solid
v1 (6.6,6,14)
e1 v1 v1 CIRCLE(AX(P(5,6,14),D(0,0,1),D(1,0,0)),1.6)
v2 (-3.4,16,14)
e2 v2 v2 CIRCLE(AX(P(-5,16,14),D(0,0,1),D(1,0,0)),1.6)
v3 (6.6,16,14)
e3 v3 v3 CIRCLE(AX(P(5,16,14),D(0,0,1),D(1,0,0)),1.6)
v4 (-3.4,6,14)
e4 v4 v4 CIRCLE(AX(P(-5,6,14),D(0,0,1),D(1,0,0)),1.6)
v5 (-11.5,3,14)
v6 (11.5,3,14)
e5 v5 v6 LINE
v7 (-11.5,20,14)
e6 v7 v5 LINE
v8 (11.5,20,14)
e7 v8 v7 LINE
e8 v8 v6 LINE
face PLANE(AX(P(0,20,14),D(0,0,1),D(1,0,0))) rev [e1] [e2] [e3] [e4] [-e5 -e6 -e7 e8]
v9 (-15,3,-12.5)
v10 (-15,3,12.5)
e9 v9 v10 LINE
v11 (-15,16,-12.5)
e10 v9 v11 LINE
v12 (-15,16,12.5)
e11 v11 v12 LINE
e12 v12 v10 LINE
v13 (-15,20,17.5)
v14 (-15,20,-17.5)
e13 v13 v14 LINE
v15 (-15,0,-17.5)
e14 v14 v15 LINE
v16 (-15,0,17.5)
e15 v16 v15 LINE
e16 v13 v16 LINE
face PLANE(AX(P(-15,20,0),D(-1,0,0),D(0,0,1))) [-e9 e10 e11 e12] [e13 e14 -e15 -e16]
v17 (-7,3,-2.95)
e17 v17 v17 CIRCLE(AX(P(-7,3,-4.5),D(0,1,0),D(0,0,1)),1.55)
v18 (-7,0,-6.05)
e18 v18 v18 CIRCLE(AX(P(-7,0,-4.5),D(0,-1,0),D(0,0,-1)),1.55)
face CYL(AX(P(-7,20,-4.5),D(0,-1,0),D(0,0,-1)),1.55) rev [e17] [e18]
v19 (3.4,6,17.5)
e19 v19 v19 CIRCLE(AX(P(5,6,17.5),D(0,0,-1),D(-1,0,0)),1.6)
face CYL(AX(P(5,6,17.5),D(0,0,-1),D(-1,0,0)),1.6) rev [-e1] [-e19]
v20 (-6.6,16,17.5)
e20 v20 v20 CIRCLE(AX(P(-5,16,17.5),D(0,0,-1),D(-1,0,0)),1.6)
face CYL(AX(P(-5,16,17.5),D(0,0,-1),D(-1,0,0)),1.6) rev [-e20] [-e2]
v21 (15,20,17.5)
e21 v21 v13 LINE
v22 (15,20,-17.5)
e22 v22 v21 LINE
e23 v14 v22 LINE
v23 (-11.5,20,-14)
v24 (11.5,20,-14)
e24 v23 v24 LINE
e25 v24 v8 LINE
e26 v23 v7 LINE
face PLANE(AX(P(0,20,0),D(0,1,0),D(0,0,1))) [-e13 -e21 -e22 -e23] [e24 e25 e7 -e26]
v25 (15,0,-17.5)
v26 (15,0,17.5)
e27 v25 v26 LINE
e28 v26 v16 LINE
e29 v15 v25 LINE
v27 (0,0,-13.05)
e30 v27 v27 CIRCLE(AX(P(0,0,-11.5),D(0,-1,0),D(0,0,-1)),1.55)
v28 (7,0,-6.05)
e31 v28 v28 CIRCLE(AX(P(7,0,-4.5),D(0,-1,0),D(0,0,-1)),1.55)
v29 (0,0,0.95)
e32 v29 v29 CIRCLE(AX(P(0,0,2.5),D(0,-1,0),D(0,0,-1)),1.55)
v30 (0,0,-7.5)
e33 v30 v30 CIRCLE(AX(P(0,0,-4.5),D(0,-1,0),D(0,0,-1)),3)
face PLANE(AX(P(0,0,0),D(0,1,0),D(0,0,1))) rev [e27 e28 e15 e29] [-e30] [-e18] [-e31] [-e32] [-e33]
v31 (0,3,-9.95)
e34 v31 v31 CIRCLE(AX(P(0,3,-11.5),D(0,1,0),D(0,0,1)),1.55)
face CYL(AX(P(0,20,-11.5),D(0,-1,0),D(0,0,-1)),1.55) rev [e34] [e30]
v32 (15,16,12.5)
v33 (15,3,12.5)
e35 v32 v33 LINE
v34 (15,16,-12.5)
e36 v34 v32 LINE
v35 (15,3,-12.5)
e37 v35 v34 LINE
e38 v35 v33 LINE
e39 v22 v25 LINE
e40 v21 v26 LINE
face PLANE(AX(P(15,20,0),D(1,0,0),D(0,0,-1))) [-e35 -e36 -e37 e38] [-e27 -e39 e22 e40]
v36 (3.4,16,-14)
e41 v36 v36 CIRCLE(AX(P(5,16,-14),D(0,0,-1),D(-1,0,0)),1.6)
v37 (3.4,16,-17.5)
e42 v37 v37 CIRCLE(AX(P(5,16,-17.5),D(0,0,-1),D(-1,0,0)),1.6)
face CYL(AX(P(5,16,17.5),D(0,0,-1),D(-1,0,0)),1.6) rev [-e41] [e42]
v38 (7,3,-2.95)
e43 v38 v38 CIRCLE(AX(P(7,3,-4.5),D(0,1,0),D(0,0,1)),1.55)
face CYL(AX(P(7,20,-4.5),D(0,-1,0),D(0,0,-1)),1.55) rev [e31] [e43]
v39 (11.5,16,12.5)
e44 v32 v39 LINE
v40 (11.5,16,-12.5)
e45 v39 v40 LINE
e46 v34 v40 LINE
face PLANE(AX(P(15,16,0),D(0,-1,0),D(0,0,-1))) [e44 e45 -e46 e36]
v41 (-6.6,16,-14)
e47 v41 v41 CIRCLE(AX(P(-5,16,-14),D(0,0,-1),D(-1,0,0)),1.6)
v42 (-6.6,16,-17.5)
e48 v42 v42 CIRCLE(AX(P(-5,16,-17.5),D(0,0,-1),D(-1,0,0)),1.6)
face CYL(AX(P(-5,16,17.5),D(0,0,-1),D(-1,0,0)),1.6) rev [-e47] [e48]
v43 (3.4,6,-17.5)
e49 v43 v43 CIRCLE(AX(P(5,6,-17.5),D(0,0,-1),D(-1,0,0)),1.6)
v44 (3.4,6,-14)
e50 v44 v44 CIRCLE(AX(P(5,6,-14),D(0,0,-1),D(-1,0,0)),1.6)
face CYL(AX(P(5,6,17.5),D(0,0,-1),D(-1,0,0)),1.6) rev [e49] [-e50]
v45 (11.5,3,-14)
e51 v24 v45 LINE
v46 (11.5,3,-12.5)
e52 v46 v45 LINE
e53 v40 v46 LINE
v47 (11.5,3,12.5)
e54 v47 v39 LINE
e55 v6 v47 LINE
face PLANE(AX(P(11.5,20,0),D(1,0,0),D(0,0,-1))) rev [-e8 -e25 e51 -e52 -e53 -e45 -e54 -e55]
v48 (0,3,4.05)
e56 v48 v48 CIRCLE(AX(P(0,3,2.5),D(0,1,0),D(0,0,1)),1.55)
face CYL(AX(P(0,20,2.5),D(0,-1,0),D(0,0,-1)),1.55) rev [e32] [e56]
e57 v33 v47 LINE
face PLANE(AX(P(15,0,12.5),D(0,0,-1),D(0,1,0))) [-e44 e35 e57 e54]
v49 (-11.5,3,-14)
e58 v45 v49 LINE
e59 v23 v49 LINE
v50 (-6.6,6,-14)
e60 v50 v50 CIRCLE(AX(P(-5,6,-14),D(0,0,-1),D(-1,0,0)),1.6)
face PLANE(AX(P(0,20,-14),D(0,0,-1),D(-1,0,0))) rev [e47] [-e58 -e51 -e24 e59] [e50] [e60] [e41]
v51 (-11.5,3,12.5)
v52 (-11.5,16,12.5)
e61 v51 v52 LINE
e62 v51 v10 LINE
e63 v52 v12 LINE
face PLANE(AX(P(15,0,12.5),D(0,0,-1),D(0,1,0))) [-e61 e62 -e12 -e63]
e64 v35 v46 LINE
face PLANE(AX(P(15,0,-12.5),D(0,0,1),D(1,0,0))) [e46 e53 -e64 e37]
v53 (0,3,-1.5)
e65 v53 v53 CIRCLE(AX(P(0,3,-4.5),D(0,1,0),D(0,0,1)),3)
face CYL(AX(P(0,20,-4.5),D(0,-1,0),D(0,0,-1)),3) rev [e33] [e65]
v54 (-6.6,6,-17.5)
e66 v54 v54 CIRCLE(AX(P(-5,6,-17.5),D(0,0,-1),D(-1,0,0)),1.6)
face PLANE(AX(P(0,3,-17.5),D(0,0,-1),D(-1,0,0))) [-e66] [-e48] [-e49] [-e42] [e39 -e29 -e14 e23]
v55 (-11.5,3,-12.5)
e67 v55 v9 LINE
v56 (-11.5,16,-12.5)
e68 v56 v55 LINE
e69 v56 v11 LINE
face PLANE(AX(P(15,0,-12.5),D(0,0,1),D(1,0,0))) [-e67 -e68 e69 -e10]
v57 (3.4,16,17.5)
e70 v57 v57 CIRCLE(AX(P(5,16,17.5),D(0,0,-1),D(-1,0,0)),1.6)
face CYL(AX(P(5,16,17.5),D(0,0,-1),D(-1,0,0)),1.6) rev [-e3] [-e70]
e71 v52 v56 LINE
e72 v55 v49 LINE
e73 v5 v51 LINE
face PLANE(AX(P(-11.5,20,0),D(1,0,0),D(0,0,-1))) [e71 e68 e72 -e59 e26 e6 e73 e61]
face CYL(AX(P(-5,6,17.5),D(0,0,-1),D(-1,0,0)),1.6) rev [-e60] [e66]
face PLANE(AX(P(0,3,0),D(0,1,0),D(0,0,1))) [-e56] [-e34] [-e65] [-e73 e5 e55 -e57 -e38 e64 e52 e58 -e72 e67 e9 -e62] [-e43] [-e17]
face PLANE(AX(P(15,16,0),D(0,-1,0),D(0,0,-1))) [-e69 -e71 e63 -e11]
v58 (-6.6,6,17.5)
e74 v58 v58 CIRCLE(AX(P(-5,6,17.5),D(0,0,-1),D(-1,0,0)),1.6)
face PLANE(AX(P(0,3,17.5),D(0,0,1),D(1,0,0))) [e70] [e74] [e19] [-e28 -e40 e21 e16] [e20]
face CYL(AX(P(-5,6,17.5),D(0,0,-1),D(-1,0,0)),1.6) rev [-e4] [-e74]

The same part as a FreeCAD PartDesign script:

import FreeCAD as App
import Part
import Sketcher

V = App.Vector

doc = App.newDocument("Part")
body = doc.addObject("PartDesign::Body", "Body")

sketch1 = body.newObject("Sketcher::SketchObject", "Sketch")
sketch1.AttachmentSupport = (doc.getObject("XZ_Plane"), [""])
sketch1.MapMode = "FlatFace"
sketch1.addGeometry([
    Part.LineSegment(V(-11.5, -17.5, 0), V(-11.5, 17.5, 0)),
    Part.LineSegment(V(-11.5, 17.5, 0), V(11.5, 17.5, 0)),
    Part.LineSegment(V(11.5, 17.5, 0), V(11.5, -17.5, 0)),
    Part.LineSegment(V(11.5, -17.5, 0), V(-11.5, -17.5, 0)),
], False)
sketch1.addConstraint([
    Sketcher.Constraint("Coincident", 0, 2, 1, 1),
    Sketcher.Constraint("Coincident", 1, 2, 2, 1),
    Sketcher.Constraint("Coincident", 2, 2, 3, 1),
    Sketcher.Constraint("Coincident", 3, 2, 0, 1),
    Sketcher.Constraint("Vertical", 0),
    Sketcher.Constraint("Horizontal", 1),
    Sketcher.Constraint("Vertical", 2),
    Sketcher.Constraint("Horizontal", 3),
    Sketcher.Constraint("Symmetric", 0, 2, 2, 2, -1, 1),
    Sketcher.Constraint("DistanceX", 1, 1, 1, 2, 23.0),
    Sketcher.Constraint("DistanceY", 0, 1, 0, 2, 35.0),
])
pad1 = body.newObject("PartDesign::Pad", "Pad")
pad1.Profile = sketch1
pad1.Length = 3
pad1.Reversed = True
body2 = doc.addObject("PartDesign::Body", "Body001")

sketch2 = body2.newObject("Sketcher::SketchObject", "Sketch001")
sketch2.AttachmentSupport = (doc.getObject("XZ_Plane001"), [""])
sketch2.MapMode = "FlatFace"
sketch2.addGeometry([
    Part.LineSegment(V(11.5, 17.5, 0), V(11.5, 14, 0)),
    Part.LineSegment(V(11.5, 14, 0), V(-11.5, 14, 0)),
    Part.LineSegment(V(-11.5, 14, 0), V(-11.5, 17.5, 0)),
    Part.LineSegment(V(-11.5, 17.5, 0), V(11.5, 17.5, 0)),
], False)
sketch2.addConstraint([
    Sketcher.Constraint("Coincident", 0, 2, 1, 1),
    Sketcher.Constraint("Coincident", 1, 2, 2, 1),
    Sketcher.Constraint("Coincident", 2, 2, 3, 1),
    Sketcher.Constraint("Coincident", 3, 2, 0, 1),
    Sketcher.Constraint("Vertical", 0),
    Sketcher.Constraint("Horizontal", 1),
    Sketcher.Constraint("Vertical", 2),
    Sketcher.Constraint("Horizontal", 3),
    Sketcher.Constraint("DistanceX", 1, 2, 1, 1, 23.0),
    Sketcher.Constraint("DistanceY", 0, 2, 0, 1, 3.5),
    Sketcher.Constraint("DistanceY", -1, 1, 0, 2, 14.0),
    Sketcher.Constraint("DistanceX", -1, 1, 0, 2, 11.5),
])
pad2 = body2.newObject("PartDesign::Pad", "Pad001")
pad2.Profile = sketch2
pad2.Length = 18
pad2.Reversed = True
body3 = doc.addObject("PartDesign::Body", "Body002")

sketch3 = body3.newObject("Sketcher::SketchObject", "Sketch002")
sketch3.AttachmentSupport = (doc.getObject("XZ_Plane002"), [""])
sketch3.MapMode = "FlatFace"
sketch3.addGeometry([
    Part.LineSegment(V(-11.5, -14, 0), V(11.5, -14, 0)),
    Part.LineSegment(V(11.5, -14, 0), V(11.5, -17.5, 0)),
    Part.LineSegment(V(11.5, -17.5, 0), V(-11.5, -17.5, 0)),
    Part.LineSegment(V(-11.5, -17.5, 0), V(-11.5, -14, 0)),
], False)
sketch3.addConstraint([
    Sketcher.Constraint("Coincident", 0, 2, 1, 1),
    Sketcher.Constraint("Coincident", 1, 2, 2, 1),
    Sketcher.Constraint("Coincident", 2, 2, 3, 1),
    Sketcher.Constraint("Coincident", 3, 2, 0, 1),
    Sketcher.Constraint("Horizontal", 0),
    Sketcher.Constraint("Vertical", 1),
    Sketcher.Constraint("Horizontal", 2),
    Sketcher.Constraint("Vertical", 3),
    Sketcher.Constraint("DistanceX", 0, 1, 0, 2, 23.0),
    Sketcher.Constraint("DistanceY", 1, 2, 1, 1, 3.5),
    Sketcher.Constraint("DistanceY", 0, 2, -1, 1, 14.0),
    Sketcher.Constraint("DistanceX", -1, 1, 0, 2, 11.5),
])
pad3 = body3.newObject("PartDesign::Pad", "Pad002")
pad3.Profile = sketch3
pad3.Length = 18
pad3.Reversed = True
doc.recompute()

boolean = body.newObject("PartDesign::Boolean", "Boolean")
boolean.Type = "Fuse"
boolean.addObjects([body2])
doc.recompute()

boolean2 = body.newObject("PartDesign::Boolean", "Boolean001")
boolean2.Type = "Fuse"
boolean2.addObjects([body3])

sketch4 = body.newObject("Sketcher::SketchObject", "Sketch003")
sketch4.AttachmentSupport = (doc.getObject("XZ_Plane"), [""])
sketch4.MapMode = "FlatFace"
sketch4.addGeometry([
    Part.LineSegment(V(15, -17.5, 0), V(-15, -17.5, 0)),
    Part.LineSegment(V(-15, -17.5, 0), V(-15, 17.5, 0)),
    Part.LineSegment(V(-15, 17.5, 0), V(15, 17.5, 0)),
    Part.LineSegment(V(15, 17.5, 0), V(15, -17.5, 0)),
    Part.LineSegment(V(11.5, 14, 0), V(-11.5, 14, 0)),
    Part.LineSegment(V(-11.5, 14, 0), V(-11.5, -14, 0)),
    Part.LineSegment(V(-11.5, -14, 0), V(11.5, -14, 0)),
    Part.LineSegment(V(11.5, -14, 0), V(11.5, 14, 0)),
], False)
sketch4.addConstraint([
    Sketcher.Constraint("Coincident", 0, 2, 1, 1),
    Sketcher.Constraint("Coincident", 1, 2, 2, 1),
    Sketcher.Constraint("Coincident", 2, 2, 3, 1),
    Sketcher.Constraint("Coincident", 3, 2, 0, 1),
    Sketcher.Constraint("Coincident", 4, 2, 5, 1),
    Sketcher.Constraint("Coincident", 5, 2, 6, 1),
    Sketcher.Constraint("Coincident", 6, 2, 7, 1),
    Sketcher.Constraint("Coincident", 7, 2, 4, 1),
    Sketcher.Constraint("Horizontal", 0),
    Sketcher.Constraint("Vertical", 1),
    Sketcher.Constraint("Horizontal", 2),
    Sketcher.Constraint("Vertical", 3),
    Sketcher.Constraint("Horizontal", 4),
    Sketcher.Constraint("Vertical", 5),
    Sketcher.Constraint("Horizontal", 6),
    Sketcher.Constraint("Vertical", 7),
    Sketcher.Constraint("Symmetric", 0, 2, 2, 2, -1, 1),
    Sketcher.Constraint("Symmetric", 4, 2, 6, 2, -1, 1),
    Sketcher.Constraint("DistanceX", 0, 2, 0, 1, 30.0),
    Sketcher.Constraint("DistanceX", 4, 2, 4, 1, 23.0),
    Sketcher.Constraint("DistanceY", 1, 1, 1, 2, 35.0),
    Sketcher.Constraint("DistanceY", 5, 2, 5, 1, 28.0),
])
pad4 = body.newObject("PartDesign::Pad", "Pad003")
pad4.Profile = sketch4
pad4.Length = 20
pad4.Reversed = True

sketch5 = body.newObject("Sketcher::SketchObject", "Sketch004")
sketch5.AttachmentSupport = (doc.getObject("YZ_Plane"), [""])
sketch5.MapMode = "FlatFace"
sketch5.AttachmentOffset = App.Placement(V(0, 0, -15), App.Rotation())
sketch5.addGeometry([
    Part.LineSegment(V(3, 12.5, 0), V(16, 12.5, 0)),
    Part.LineSegment(V(16, 12.5, 0), V(16, -12.5, 0)),
    Part.LineSegment(V(16, -12.5, 0), V(3, -12.5, 0)),
    Part.LineSegment(V(3, -12.5, 0), V(3, 12.5, 0)),
], False)
sketch5.addConstraint([
    Sketcher.Constraint("Coincident", 0, 2, 1, 1),
    Sketcher.Constraint("Coincident", 1, 2, 2, 1),
    Sketcher.Constraint("Coincident", 2, 2, 3, 1),
    Sketcher.Constraint("Coincident", 3, 2, 0, 1),
    Sketcher.Constraint("Horizontal", 0),
    Sketcher.Constraint("Vertical", 1),
    Sketcher.Constraint("Horizontal", 2),
    Sketcher.Constraint("Vertical", 3),
    Sketcher.Constraint("DistanceX", 0, 1, 0, 2, 13.0),
    Sketcher.Constraint("DistanceY", 1, 2, 1, 1, 25.0),
    Sketcher.Constraint("DistanceX", -1, 1, 0, 2, 16.0),
    Sketcher.Constraint("DistanceY", -1, 1, 0, 2, 12.5),
])
pocket1 = body.newObject("PartDesign::Pocket", "Pocket")
pocket1.Profile = sketch5
pocket1.Type = "ThroughAll"
pocket1.Reversed = True

sketch6 = body.newObject("Sketcher::SketchObject", "Sketch005")
sketch6.AttachmentSupport = (doc.getObject("XZ_Plane"), [""])
sketch6.MapMode = "FlatFace"
sketch6.addGeometry([
    Part.Circle(V(0, -11.5, 0), V(0, 0, 1), 1.55),
    Part.Circle(V(0, 2.5, 0), V(0, 0, 1), 1.55),
    Part.Circle(V(7, -4.5, 0), V(0, 0, 1), 1.55),
    Part.Circle(V(-7, -4.5, 0), V(0, 0, 1), 1.55),
    Part.Circle(V(0, -4.5, 0), V(0, 0, 1), 3),
], False)
sketch6.addConstraint([
    Sketcher.Constraint("Equal", 0, 1),
    Sketcher.Constraint("Equal", 1, 2),
    Sketcher.Constraint("Equal", 2, 3),
    Sketcher.Constraint("Symmetric", 2, 3, 3, 3, -2),
    Sketcher.Constraint("PointOnObject", 0, 3, -2),
    Sketcher.Constraint("PointOnObject", 1, 3, -2),
    Sketcher.Constraint("PointOnObject", 4, 3, -2),
    Sketcher.Constraint("Horizontal", 3, 3, 4, 3),
    Sketcher.Constraint("Diameter", 4, 6.0),
    Sketcher.Constraint("Diameter", 0, 3.1),
    Sketcher.Constraint("DistanceX", -1, 1, 2, 3, 7.0),
    Sketcher.Constraint("DistanceY", 0, 3, 1, 3, 14.0),
    Sketcher.Constraint("DistanceY", 0, 3, 2, 3, 7.0),
    Sketcher.Constraint("DistanceY", 0, 3, -1, 1, 11.5),
])
pocket2 = body.newObject("PartDesign::Pocket", "Pocket001")
pocket2.Profile = sketch6
pocket2.Type = "ThroughAll"

sketch7 = body.newObject("Sketcher::SketchObject", "Sketch006")
sketch7.AttachmentSupport = (doc.getObject("XY_Plane"), [""])
sketch7.MapMode = "FlatFace"
sketch7.AttachmentOffset = App.Placement(V(0, 0, -17.5), App.Rotation())
sketch7.addGeometry([
    Part.Circle(V(-5, 6, 0), V(0, 0, 1), 1.6),
    Part.Circle(V(5, 6, 0), V(0, 0, 1), 1.6),
    Part.Circle(V(5, 16, 0), V(0, 0, 1), 1.6),
    Part.Circle(V(-5, 16, 0), V(0, 0, 1), 1.6),
], False)
sketch7.addConstraint([
    Sketcher.Constraint("Equal", 0, 1),
    Sketcher.Constraint("Equal", 1, 2),
    Sketcher.Constraint("Equal", 2, 3),
    Sketcher.Constraint("Symmetric", 0, 3, 1, 3, -2),
    Sketcher.Constraint("Symmetric", 2, 3, 3, 3, -2),
    Sketcher.Constraint("Vertical", 1, 3, 2, 3),
    Sketcher.Constraint("Diameter", 0, 3.2),
    Sketcher.Constraint("DistanceX", 0, 3, -1, 1, 5.0),
    Sketcher.Constraint("DistanceY", -1, 1, 0, 3, 6.0),
    Sketcher.Constraint("DistanceY", -1, 1, 2, 3, 16.0),
])
pocket3 = body.newObject("PartDesign::Pocket", "Pocket002")
pocket3.Profile = sketch7
pocket3.Type = "ThroughAll"
pocket3.Reversed = True

doc.recompute()
